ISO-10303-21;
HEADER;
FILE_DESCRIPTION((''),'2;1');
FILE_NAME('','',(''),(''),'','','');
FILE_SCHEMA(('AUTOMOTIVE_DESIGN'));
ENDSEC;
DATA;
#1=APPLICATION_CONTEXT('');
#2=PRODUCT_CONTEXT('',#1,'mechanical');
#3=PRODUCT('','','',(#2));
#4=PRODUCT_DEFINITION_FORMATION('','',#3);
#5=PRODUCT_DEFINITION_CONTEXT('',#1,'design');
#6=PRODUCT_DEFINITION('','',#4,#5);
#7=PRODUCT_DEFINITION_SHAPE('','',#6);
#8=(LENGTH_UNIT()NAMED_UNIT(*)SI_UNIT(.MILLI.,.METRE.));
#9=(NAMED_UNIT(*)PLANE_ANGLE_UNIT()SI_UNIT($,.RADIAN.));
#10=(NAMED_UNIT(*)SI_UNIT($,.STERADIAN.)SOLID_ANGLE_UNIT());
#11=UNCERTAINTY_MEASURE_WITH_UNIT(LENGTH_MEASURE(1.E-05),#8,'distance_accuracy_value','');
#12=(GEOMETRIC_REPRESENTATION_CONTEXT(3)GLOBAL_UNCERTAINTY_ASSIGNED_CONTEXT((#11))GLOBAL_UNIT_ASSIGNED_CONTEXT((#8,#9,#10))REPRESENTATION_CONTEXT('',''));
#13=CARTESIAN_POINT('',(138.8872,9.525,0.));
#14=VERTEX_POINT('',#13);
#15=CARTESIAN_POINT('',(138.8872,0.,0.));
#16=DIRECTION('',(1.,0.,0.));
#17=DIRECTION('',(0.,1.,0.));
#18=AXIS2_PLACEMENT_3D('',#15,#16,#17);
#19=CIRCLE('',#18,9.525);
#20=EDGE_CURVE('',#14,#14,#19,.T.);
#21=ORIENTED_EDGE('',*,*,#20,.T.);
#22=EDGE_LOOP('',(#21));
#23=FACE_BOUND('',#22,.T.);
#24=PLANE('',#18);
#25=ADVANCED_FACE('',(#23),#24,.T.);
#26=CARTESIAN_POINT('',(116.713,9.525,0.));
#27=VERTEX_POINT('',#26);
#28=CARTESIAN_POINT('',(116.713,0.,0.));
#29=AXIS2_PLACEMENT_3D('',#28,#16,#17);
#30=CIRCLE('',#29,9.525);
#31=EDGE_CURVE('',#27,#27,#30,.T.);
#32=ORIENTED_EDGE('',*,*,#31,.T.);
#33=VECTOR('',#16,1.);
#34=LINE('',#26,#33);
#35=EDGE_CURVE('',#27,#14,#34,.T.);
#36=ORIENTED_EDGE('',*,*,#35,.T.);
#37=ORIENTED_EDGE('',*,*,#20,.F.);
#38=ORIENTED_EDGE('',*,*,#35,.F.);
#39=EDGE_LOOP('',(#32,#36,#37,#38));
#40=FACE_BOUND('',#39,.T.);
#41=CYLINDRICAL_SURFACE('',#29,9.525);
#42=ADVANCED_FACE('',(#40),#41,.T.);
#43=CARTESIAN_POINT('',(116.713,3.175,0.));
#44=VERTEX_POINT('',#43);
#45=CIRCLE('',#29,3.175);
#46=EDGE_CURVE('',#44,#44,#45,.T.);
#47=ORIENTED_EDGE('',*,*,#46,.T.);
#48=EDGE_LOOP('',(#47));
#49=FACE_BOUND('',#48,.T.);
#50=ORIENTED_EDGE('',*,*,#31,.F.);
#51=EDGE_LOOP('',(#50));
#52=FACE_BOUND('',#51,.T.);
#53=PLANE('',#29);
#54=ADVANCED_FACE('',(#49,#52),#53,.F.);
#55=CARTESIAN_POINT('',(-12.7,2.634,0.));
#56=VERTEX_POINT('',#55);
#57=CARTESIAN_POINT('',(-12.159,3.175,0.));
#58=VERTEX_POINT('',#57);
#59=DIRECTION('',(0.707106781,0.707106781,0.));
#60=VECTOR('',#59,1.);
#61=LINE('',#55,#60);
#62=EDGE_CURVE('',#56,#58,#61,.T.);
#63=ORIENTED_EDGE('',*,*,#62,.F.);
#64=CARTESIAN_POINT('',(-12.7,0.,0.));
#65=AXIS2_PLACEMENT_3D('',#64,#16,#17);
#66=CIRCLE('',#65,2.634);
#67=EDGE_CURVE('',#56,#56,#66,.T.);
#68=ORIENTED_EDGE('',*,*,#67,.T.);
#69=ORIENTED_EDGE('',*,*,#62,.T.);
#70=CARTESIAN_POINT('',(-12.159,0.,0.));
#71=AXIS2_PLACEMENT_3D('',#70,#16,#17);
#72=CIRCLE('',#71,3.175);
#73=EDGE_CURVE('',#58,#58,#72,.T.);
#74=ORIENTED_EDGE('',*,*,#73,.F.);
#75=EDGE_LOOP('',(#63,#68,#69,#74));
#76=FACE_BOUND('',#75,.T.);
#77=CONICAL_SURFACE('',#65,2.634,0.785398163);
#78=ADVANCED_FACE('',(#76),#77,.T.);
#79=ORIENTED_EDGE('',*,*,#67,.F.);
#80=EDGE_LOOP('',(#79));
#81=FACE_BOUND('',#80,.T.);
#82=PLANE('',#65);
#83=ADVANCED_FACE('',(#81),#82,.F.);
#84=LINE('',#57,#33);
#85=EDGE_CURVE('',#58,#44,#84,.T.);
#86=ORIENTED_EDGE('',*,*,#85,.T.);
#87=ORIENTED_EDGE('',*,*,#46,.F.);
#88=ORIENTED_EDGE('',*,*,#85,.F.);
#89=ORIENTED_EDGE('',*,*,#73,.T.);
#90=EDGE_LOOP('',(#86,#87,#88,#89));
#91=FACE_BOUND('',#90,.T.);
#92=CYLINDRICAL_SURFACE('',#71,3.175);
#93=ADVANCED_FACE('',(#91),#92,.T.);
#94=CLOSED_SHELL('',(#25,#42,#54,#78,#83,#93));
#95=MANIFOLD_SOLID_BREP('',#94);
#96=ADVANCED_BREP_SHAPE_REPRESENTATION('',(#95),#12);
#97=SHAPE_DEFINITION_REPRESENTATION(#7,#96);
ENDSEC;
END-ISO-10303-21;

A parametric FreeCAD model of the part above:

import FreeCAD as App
import Part
import Sketcher
from FreeCAD import Vector
Q = App.Units.Quantity

doc = App.newDocument("Part")
body = doc.addObject("PartDesign::Body", "Body")

# Sketch on XY plane
sketch1 = doc.addObject("Sketcher::SketchObject", "Sketch")
body.addObject(sketch1)
sketch1.AttachmentSupport = (doc.XY_Plane, [""])
sketch1.MapMode = "FlatFace"
sketch1.addGeometry([
    Part.LineSegment(Vector(0, 0, 0), Vector(138.9, 0, 0)),
    Part.LineSegment(Vector(138.9, 0, 0), Vector(138.9, 3.2, 0)),
    Part.LineSegment(Vector(138.9, 3.2, 0), Vector(0, 3.2, 0)),
    Part.LineSegment(Vector(0, 3.2, 0), Vector(0, 0, 0)),
], False)
sketch1.addConstraint([
    Sketcher.Constraint("Coincident", 0, 2, 1, 1),
    Sketcher.Constraint("Coincident", 1, 2, 2, 1),
    Sketcher.Constraint("Coincident", 2, 2, 3, 1),
    Sketcher.Constraint("Coincident", 3, 2, 0, 1),
    Sketcher.Constraint("Horizontal", 0),
    Sketcher.Constraint("Vertical", 1),
    Sketcher.Constraint("Horizontal", 2),
    Sketcher.Constraint("Vertical", 3),
    Sketcher.Constraint("Coincident", 3, 2, -1, 1),
    Sketcher.Constraint("DistanceX", 0, 1, 0, 2, Q("5.468 in")),
    Sketcher.Constraint("DistanceY", 1, 1, 1, 2, Q("0.125 in")),
])
revolution = doc.addObject("PartDesign::Revolution", "Revolution")
body.addObject(revolution)
revolution.Profile = sketch1
revolution.ReferenceAxis = (sketch1, ["H_Axis"])
revolution.Angle = 360

# Sketch on XY plane
sketch2 = doc.addObject("Sketcher::SketchObject", "Sketch001")
body.addObject(sketch2)
sketch2.AttachmentSupport = (doc.XY_Plane, [""])
sketch2.MapMode = "FlatFace"
sketch2.addGeometry([
    Part.LineSegment(Vector(117, 0, 0), Vector(139, 0, 0)),
    Part.LineSegment(Vector(139, 0, 0), Vector(139, 10, 0)),
    Part.LineSegment(Vector(139, 10, 0), Vector(117, 10, 0)),
    Part.LineSegment(Vector(117, 10, 0), Vector(117, 0, 0)),
], False)
sketch2.addConstraint([
    Sketcher.Constraint("Coincident", 0, 2, 1, 1),
    Sketcher.Constraint("Coincident", 1, 2, 2, 1),
    Sketcher.Constraint("Coincident", 2, 2, 3, 1),
    Sketcher.Constraint("Coincident", 3, 2, 0, 1),
    Sketcher.Constraint("Horizontal", 0),
    Sketcher.Constraint("Vertical", 1),
    Sketcher.Constraint("Horizontal", 2),
    Sketcher.Constraint("Vertical", 3),
    Sketcher.Constraint("PointOnObject", 0, 2, -1),
    Sketcher.Constraint("DistanceX", 0, 1, 0, 2, Q("0.873 in")),
    Sketcher.Constraint("DistanceY", 1, 1, 1, 2, Q("0.375 in")),
    Sketcher.Constraint("DistanceX", -1, 1, 0, 2, Q("5.468 in")),
])
revolution2 = doc.addObject("PartDesign::Revolution", "Revolution001")
body.addObject(revolution2)
revolution2.Profile = sketch2
revolution2.ReferenceAxis = (sketch2, ["H_Axis"])
revolution2.Angle = 360

# Sketch on XY plane
sketch3 = doc.addObject("Sketcher::SketchObject", "Sketch002")
body.addObject(sketch3)
sketch3.AttachmentSupport = (doc.XY_Plane, [""])
sketch3.MapMode = "FlatFace"
sketch3.addGeometry([
    Part.LineSegment(Vector(-12.7, 0, 0), Vector(0, 0, 0)),  # 0
    Part.LineSegment(Vector(0, 0, 0), Vector(0, 3.2, 0)),  # 1
    Part.LineSegment(Vector(0, 3.2, 0), Vector(-12.2, 3.2, 0)),  # 2
    Part.LineSegment(Vector(-12.2, 3.2, 0), Vector(-12.7, 2.6, 0)),  # 3
    Part.LineSegment(Vector(-12.7, 2.6, 0), Vector(-12.7, 0, 0)),  # 4
], False)
sketch3.addConstraint([
    Sketcher.Constraint("Coincident", 0, 2, 1, 1),
    Sketcher.Constraint("Coincident", 1, 2, 2, 1),
    Sketcher.Constraint("Coincident", 2, 2, 3, 1),
    Sketcher.Constraint("Coincident", 3, 2, 4, 1),
    Sketcher.Constraint("Coincident", 4, 2, 0, 1),
    Sketcher.Constraint("Horizontal", 0),
    Sketcher.Constraint("Vertical", 1),
    Sketcher.Constraint("Horizontal", 2),
    Sketcher.Constraint("Vertical", 4),
    Sketcher.Constraint("Coincident", 0, 2, -1, 1),
    Sketcher.Constraint("DistanceX", 0, 1, 0, 2, Q("0.5 in")),
    Sketcher.Constraint("Angle", 3, Q("-135 deg")),
    Sketcher.Constraint("DistanceY", 1, 1, 1, 2, Q("0.125 in")),
    Sketcher.Constraint("DistanceX", 2, 2, 2, 1, Q("0.4787 in")),
])
revolution3 = doc.addObject("PartDesign::Revolution", "Revolution002")
body.addObject(revolution3)
revolution3.Profile = sketch3
revolution3.ReferenceAxis = (sketch3, ["H_Axis"])
revolution3.Angle = 360

doc.recompute()
